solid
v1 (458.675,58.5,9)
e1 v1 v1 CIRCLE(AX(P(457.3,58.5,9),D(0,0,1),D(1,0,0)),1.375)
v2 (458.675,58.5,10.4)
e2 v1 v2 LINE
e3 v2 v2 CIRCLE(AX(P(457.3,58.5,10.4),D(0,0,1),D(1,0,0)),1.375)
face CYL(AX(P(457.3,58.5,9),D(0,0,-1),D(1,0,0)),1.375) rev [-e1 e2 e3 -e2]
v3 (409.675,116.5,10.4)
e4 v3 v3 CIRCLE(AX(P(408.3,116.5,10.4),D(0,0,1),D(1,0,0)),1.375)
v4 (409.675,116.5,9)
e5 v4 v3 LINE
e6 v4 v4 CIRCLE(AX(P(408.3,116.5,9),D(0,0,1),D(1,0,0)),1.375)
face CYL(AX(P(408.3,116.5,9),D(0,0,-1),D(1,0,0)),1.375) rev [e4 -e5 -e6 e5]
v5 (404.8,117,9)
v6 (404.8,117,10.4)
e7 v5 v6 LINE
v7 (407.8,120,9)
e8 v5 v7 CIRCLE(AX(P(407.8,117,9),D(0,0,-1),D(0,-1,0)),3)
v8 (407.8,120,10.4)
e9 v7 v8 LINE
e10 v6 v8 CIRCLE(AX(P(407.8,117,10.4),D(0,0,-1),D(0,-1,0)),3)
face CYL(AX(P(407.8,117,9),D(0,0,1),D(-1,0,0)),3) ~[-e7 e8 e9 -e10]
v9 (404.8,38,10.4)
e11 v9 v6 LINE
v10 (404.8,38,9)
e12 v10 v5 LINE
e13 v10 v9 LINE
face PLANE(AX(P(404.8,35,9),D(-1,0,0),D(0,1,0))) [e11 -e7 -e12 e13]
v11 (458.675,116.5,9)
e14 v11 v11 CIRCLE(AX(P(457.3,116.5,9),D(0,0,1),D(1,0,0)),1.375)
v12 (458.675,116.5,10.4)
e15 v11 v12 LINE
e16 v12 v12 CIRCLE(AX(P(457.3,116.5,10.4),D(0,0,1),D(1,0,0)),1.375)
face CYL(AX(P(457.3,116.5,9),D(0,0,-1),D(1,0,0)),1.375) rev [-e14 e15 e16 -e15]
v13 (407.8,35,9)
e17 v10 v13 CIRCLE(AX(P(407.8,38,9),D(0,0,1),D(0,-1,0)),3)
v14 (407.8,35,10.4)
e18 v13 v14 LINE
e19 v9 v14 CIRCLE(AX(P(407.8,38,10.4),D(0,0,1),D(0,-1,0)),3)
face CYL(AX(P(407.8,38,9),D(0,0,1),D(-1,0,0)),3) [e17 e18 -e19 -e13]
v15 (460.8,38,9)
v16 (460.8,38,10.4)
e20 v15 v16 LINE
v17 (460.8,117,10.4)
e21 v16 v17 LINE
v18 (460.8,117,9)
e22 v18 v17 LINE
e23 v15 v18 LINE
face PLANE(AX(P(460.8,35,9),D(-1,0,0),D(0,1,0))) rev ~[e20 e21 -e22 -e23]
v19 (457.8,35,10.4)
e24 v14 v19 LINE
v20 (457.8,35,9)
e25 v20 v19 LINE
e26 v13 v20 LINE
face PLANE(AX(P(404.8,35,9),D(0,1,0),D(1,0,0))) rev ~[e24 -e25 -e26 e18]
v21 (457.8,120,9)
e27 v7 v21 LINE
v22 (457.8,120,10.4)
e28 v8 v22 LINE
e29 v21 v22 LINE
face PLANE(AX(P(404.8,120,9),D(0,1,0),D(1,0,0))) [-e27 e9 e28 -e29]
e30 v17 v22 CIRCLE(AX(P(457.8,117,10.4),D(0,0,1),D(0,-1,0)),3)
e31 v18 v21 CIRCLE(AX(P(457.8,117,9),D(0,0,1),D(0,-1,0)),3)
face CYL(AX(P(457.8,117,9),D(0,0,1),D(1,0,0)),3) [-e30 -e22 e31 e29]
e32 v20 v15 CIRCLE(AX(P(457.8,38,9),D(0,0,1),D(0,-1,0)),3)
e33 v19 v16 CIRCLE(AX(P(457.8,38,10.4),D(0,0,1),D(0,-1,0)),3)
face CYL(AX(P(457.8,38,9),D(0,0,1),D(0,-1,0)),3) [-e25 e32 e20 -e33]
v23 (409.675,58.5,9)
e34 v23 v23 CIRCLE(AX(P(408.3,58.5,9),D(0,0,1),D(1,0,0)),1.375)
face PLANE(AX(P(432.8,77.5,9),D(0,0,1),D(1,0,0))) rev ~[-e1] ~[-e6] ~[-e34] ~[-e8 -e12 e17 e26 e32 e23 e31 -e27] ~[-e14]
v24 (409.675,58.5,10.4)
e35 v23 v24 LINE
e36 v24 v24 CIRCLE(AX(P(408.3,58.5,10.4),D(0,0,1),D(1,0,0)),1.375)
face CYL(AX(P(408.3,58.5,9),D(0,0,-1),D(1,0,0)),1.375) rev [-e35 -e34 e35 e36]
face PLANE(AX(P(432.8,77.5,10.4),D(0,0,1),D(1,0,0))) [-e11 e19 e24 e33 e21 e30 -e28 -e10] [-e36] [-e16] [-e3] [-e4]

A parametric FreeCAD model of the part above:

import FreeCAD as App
import Part
import Sketcher


def edges_at(feature, points):
    """Names of the edges that pass closest to the given points."""
    edges = feature.Shape.Edges
    near = lambda p: min(range(len(edges)), key=lambda i: edges[i].distToShape(Part.Vertex(*p))[0])
    return sorted({f"Edge{near(p) + 1}" for p in points})

doc = App.newDocument("Part")
params = doc.addObject("Spreadsheet::Sheet", "Params")
for row, (alias, value) in enumerate([
    ("sketch1_diameter", "2.75 mm"),
    ("pad1_length", "1.4 mm"),
    ("sketch2_diameter", "2.75 mm"),
    ("pad2_length", "1.4 mm"),
    ("sketch3_diameter", "2.75 mm"),
    ("pad3_length", "1.4 mm"),
    ("sketch4_diameter", "2.75 mm"),
    ("pad4_length", "1.4 mm"),
    ("sketch5_width", "56 mm"),
    ("sketch5_height", "85 mm"),
    ("pad5_length", "1.4 mm"),
    ("fillet_radius", "3 mm"),
], start=1):
    params.set(f"A{row}", alias)
    params.set(f"B{row}", "=" + value)
    params.setAlias(f"B{row}", alias)

body = doc.addObject("PartDesign::Body", "Body")

sketch1 = doc.addObject("Sketcher::SketchObject", "Sketch")
body.addObject(sketch1)
sketch1.AttachmentSupport = (doc.XY_Plane, [""])
sketch1.MapMode = "FlatFace"
sketch1.AttachmentOffset = App.Placement(App.Vector(0, 0, 9), App.Rotation())
sketch1.addGeometry(Part.Circle(App.Vector(52.5, 81.5, 0), App.Vector(0, 0, 1), 1.4), False)
sketch1.addConstraint([
    Sketcher.Constraint("Diameter", 0, 2.75),
    Sketcher.Constraint("DistanceX", -1, 1, 0, 3, 52.5),
    Sketcher.Constraint("DistanceY", -1, 1, 0, 3, 81.5),
])
sketch1.setExpression("Constraints[0]", "Params.sketch1_diameter")
pad1 = doc.addObject("PartDesign::Pad", "Pad")
body.addObject(pad1)
pad1.Profile = sketch1
pad1.setExpression("Length", "Params.pad1_length")
body2 = doc.addObject("PartDesign::Body", "Body001")

sketch2 = doc.addObject("Sketcher::SketchObject", "Sketch001")
body2.addObject(sketch2)
sketch2.AttachmentSupport = (doc.getObject("XY_Plane001"), [""])
sketch2.MapMode = "FlatFace"
sketch2.AttachmentOffset = App.Placement(App.Vector(0, 0, 9), App.Rotation())
sketch2.addGeometry(Part.Circle(App.Vector(52.5, 23.5, 0), App.Vector(0, 0, 1), 1.4), False)
sketch2.addConstraint([
    Sketcher.Constraint("Diameter", 0, 2.75),
    Sketcher.Constraint("DistanceX", -1, 1, 0, 3, 52.5),
    Sketcher.Constraint("DistanceY", -1, 1, 0, 3, 23.5),
])
sketch2.setExpression("Constraints[0]", "Params.sketch2_diameter")
pad2 = doc.addObject("PartDesign::Pad", "Pad001")
body2.addObject(pad2)
pad2.Profile = sketch2
pad2.setExpression("Length", "Params.pad2_length")
body3 = doc.addObject("PartDesign::Body", "Body002")

sketch3 = doc.addObject("Sketcher::SketchObject", "Sketch002")
body3.addObject(sketch3)
sketch3.AttachmentSupport = (doc.getObject("XY_Plane002"), [""])
sketch3.MapMode = "FlatFace"
sketch3.AttachmentOffset = App.Placement(App.Vector(0, 0, 9), App.Rotation())
sketch3.addGeometry(Part.Circle(App.Vector(3.5, 23.5, 0), App.Vector(0, 0, 1), 1.4), False)
sketch3.addConstraint([
    Sketcher.Constraint("Diameter", 0, 2.75),
    Sketcher.Constraint("DistanceX", -1, 1, 0, 3, 3.5),
    Sketcher.Constraint("DistanceY", -1, 1, 0, 3, 23.5),
])
sketch3.setExpression("Constraints[0]", "Params.sketch3_diameter")
pad3 = doc.addObject("PartDesign::Pad", "Pad002")
body3.addObject(pad3)
pad3.Profile = sketch3
pad3.setExpression("Length", "Params.pad3_length")
body4 = doc.addObject("PartDesign::Body", "Body003")
body4.AllowCompound = True

sketch4 = doc.addObject("Sketcher::SketchObject", "Sketch003")
body4.addObject(sketch4)
sketch4.AttachmentSupport = (doc.getObject("XY_Plane003"), [""])
sketch4.MapMode = "FlatFace"
sketch4.AttachmentOffset = App.Placement(App.Vector(0, 0, 9), App.Rotation())
sketch4.addGeometry(Part.Circle(App.Vector(3.5, 81.5, 0), App.Vector(0, 0, 1), 1.4), False)
sketch4.addConstraint([
    Sketcher.Constraint("Diameter", 0, 2.75),
    Sketcher.Constraint("DistanceX", -1, 1, 0, 3, 3.5),
    Sketcher.Constraint("DistanceY", -1, 1, 0, 3, 81.5),
])
sketch4.setExpression("Constraints[0]", "Params.sketch4_diameter")
pad4 = doc.addObject("PartDesign::Pad", "Pad003")
body4.addObject(pad4)
pad4.Profile = sketch4
pad4.setExpression("Length", "Params.pad4_length")
doc.recompute()

boolean = doc.addObject("PartDesign::Boolean", "Boolean")
body4.addObject(boolean)
boolean.Type = "Fuse"
boolean.addObjects([body])
doc.recompute()

boolean2 = doc.addObject("PartDesign::Boolean", "Boolean001")
body4.addObject(boolean2)
boolean2.Type = "Fuse"
boolean2.addObjects([body2])
doc.recompute()

boolean3 = doc.addObject("PartDesign::Boolean", "Boolean002")
body4.addObject(boolean3)
boolean3.Type = "Fuse"
boolean3.addObjects([body3])
body5 = doc.addObject("PartDesign::Body", "Body004")

sketch5 = doc.addObject("Sketcher::SketchObject", "Sketch004")
body5.addObject(sketch5)
sketch5.AttachmentSupport = (doc.getObject("XY_Plane004"), [""])
sketch5.MapMode = "FlatFace"
sketch5.AttachmentOffset = App.Placement(App.Vector(0, 0, 9), App.Rotation())
sketch5.addGeometry([
    Part.LineSegment(App.Vector(0, 85, 0), App.Vector(0, 0, 0)),
    Part.LineSegment(App.Vector(0, 0, 0), App.Vector(56, 0, 0)),
    Part.LineSegment(App.Vector(56, 0, 0), App.Vector(56, 85, 0)),
    Part.LineSegment(App.Vector(56, 85, 0), App.Vector(0, 85, 0)),
], False)
sketch5.addConstraint([
    Sketcher.Constraint("Coincident", 0, 2, 1, 1),
    Sketcher.Constraint("Coincident", 1, 2, 2, 1),
    Sketcher.Constraint("Coincident", 2, 2, 3, 1),
    Sketcher.Constraint("Coincident", 3, 2, 0, 1),
    Sketcher.Constraint("Vertical", 0),
    Sketcher.Constraint("Horizontal", 1),
    Sketcher.Constraint("Vertical", 2),
    Sketcher.Constraint("Horizontal", 3),
    Sketcher.Constraint("Coincident", 0, 2, -1, 1),
    Sketcher.Constraint("DistanceX", 1, 1, 1, 2, 56.0),
    Sketcher.Constraint("DistanceY", 0, 2, 0, 1, 85.0),
])
sketch5.setExpression("Constraints[9]", "Params.sketch5_width")
sketch5.setExpression("Constraints[10]", "Params.sketch5_height")
pad5 = doc.addObject("PartDesign::Pad", "Pad004")
body5.addObject(pad5)
pad5.Profile = sketch5
pad5.setExpression("Length", "Params.pad5_length")
doc.recompute()

fillet = doc.addObject("PartDesign::Fillet", "Fillet")
body5.addObject(fillet)
fillet.Base = (pad5, edges_at(pad5, [
    (0, 0, 9.7),
    (0, 85, 9.7),
    (56, 0, 9.7),
    (56, 85, 9.7),
]))
fillet.setExpression("Radius", "Params.fillet_radius")
doc.recompute()

boolean4 = doc.addObject("PartDesign::Boolean", "Boolean003")
body5.addObject(boolean4)
boolean4.Type = "Cut"
boolean4.addObjects([body4])
body6 = doc.addObject("PartDesign::Body", "Body005")
doc.recompute()

body5.Placement = App.Placement(App.Vector(404.8, 35, 0), App.Rotation(App.Vector(0, 0, 1), 0))
boolean5 = doc.addObject("PartDesign::Boolean", "Boolean004")
body6.addObject(boolean5)
boolean5.Type = "Fuse"
boolean5.addObjects([body5])

doc.recompute()
